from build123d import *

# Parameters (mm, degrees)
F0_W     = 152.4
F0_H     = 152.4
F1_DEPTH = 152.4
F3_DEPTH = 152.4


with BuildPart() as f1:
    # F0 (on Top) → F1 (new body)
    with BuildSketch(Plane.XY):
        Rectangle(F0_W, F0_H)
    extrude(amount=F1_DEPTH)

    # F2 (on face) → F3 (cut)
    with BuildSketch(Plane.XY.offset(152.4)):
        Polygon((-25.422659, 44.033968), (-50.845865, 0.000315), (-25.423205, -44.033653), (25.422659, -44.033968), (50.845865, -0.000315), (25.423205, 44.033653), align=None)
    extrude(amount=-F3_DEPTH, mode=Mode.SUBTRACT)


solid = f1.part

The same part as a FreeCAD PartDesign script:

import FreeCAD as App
import Part
import Sketcher
Q = App.Units.Quantity

doc = App.newDocument("Part")
body = doc.addObject("PartDesign::Body", "Body")

sketch1 = doc.addObject("Sketcher::SketchObject", "Sketch")
body.addObject(sketch1)
sketch1.AttachmentSupport = (doc.XY_Plane, [""])
sketch1.MapMode = "FlatFace"
sketch1.addGeometry([
    Part.LineSegment(App.Vector(-76.2, 76.2, 0), App.Vector(-76.2, -76.2, 0)),
    Part.LineSegment(App.Vector(-76.2, -76.2, 0), App.Vector(76.2, -76.2, 0)),
    Part.LineSegment(App.Vector(76.2, -76.2, 0), App.Vector(76.2, 76.2, 0)),
    Part.LineSegment(App.Vector(76.2, 76.2, 0), App.Vector(-76.2, 76.2, 0)),
], False)
sketch1.addConstraint([
    Sketcher.Constraint("Coincident", 0, 2, 1, 1),
    Sketcher.Constraint("Coincident", 1, 2, 2, 1),
    Sketcher.Constraint("Coincident", 2, 2, 3, 1),
    Sketcher.Constraint("Coincident", 3, 2, 0, 1),
    Sketcher.Constraint("Vertical", 0),
    Sketcher.Constraint("Horizontal", 1),
    Sketcher.Constraint("Vertical", 2),
    Sketcher.Constraint("Horizontal", 3),
    Sketcher.Constraint("Symmetric", 0, 2, 2, 2, -1, 1),
    Sketcher.Constraint("Equal", 3, 0),
    Sketcher.Constraint("DistanceX", 1, 1, 1, 2, Q("6 in")),
])
pad1 = doc.addObject("PartDesign::Pad", "Pad")
body.addObject(pad1)
pad1.Profile = sketch1
pad1.Length = Q("6 in")

sketch2 = doc.addObject("Sketcher::SketchObject", "Sketch001")
body.addObject(sketch2)
sketch2.AttachmentSupport = (doc.XY_Plane, [""])
sketch2.MapMode = "FlatFace"
sketch2.AttachmentOffset = App.Placement(App.Vector(0, 0, 6 * 25.4), App.Rotation())
sketch2.addGeometry([
    Part.LineSegment(App.Vector(-25.422659, 44.033968, 0), App.Vector(-50.845865, 0.000315, 0)),
    Part.LineSegment(App.Vector(-50.845865, 0.000315, 0), App.Vector(-25.423205, -44.033653, 0)),
    Part.LineSegment(App.Vector(-25.423205, -44.033653, 0), App.Vector(25.422659, -44.033968, 0)),
    Part.LineSegment(App.Vector(25.422659, -44.033968, 0), App.Vector(50.845865, -0.000315, 0)),
    Part.LineSegment(App.Vector(50.845865, -0.000315, 0), App.Vector(25.423205, 44.033653, 0)),
    Part.LineSegment(App.Vector(25.423205, 44.033653, 0), App.Vector(-25.422659, 44.033968, 0)),
], False)
sketch2.addConstraint([
    Sketcher.Constraint("Coincident", 0, 2, 1, 1),
    Sketcher.Constraint("Coincident", 1, 2, 2, 1),
    Sketcher.Constraint("Coincident", 2, 2, 3, 1),
    Sketcher.Constraint("Coincident", 3, 2, 4, 1),
    Sketcher.Constraint("Coincident", 4, 2, 5, 1),
    Sketcher.Constraint("Coincident", 5, 2, 0, 1),
    Sketcher.Constraint("Symmetric", 0, 2, 3, 2, -1, 1),
    Sketcher.Constraint("Symmetric", 1, 2, 4, 2, -1, 1),
    Sketcher.Constraint("Symmetric", 2, 2, 5, 2, -1, 1),
    Sketcher.Constraint("Equal", 0, 1),
    Sketcher.Constraint("Equal", 1, 2),
    Sketcher.Constraint("DistanceX", -1, 1, 2, 2, 25.422659),
    Sketcher.Constraint("DistanceY", 2, 2, -1, 1, 44.033968),
    Sketcher.Constraint("DistanceX", 0, 2, 1, 2, 25.42266),
    Sketcher.Constraint("DistanceY", 1, 2, 0, 2, 44.033968),
])
pocket1 = doc.addObject("PartDesign::Pocket", "Pocket")
body.addObject(pocket1)
pocket1.Profile = sketch2
pocket1.Length = Q("6 in")

doc.recompute()
